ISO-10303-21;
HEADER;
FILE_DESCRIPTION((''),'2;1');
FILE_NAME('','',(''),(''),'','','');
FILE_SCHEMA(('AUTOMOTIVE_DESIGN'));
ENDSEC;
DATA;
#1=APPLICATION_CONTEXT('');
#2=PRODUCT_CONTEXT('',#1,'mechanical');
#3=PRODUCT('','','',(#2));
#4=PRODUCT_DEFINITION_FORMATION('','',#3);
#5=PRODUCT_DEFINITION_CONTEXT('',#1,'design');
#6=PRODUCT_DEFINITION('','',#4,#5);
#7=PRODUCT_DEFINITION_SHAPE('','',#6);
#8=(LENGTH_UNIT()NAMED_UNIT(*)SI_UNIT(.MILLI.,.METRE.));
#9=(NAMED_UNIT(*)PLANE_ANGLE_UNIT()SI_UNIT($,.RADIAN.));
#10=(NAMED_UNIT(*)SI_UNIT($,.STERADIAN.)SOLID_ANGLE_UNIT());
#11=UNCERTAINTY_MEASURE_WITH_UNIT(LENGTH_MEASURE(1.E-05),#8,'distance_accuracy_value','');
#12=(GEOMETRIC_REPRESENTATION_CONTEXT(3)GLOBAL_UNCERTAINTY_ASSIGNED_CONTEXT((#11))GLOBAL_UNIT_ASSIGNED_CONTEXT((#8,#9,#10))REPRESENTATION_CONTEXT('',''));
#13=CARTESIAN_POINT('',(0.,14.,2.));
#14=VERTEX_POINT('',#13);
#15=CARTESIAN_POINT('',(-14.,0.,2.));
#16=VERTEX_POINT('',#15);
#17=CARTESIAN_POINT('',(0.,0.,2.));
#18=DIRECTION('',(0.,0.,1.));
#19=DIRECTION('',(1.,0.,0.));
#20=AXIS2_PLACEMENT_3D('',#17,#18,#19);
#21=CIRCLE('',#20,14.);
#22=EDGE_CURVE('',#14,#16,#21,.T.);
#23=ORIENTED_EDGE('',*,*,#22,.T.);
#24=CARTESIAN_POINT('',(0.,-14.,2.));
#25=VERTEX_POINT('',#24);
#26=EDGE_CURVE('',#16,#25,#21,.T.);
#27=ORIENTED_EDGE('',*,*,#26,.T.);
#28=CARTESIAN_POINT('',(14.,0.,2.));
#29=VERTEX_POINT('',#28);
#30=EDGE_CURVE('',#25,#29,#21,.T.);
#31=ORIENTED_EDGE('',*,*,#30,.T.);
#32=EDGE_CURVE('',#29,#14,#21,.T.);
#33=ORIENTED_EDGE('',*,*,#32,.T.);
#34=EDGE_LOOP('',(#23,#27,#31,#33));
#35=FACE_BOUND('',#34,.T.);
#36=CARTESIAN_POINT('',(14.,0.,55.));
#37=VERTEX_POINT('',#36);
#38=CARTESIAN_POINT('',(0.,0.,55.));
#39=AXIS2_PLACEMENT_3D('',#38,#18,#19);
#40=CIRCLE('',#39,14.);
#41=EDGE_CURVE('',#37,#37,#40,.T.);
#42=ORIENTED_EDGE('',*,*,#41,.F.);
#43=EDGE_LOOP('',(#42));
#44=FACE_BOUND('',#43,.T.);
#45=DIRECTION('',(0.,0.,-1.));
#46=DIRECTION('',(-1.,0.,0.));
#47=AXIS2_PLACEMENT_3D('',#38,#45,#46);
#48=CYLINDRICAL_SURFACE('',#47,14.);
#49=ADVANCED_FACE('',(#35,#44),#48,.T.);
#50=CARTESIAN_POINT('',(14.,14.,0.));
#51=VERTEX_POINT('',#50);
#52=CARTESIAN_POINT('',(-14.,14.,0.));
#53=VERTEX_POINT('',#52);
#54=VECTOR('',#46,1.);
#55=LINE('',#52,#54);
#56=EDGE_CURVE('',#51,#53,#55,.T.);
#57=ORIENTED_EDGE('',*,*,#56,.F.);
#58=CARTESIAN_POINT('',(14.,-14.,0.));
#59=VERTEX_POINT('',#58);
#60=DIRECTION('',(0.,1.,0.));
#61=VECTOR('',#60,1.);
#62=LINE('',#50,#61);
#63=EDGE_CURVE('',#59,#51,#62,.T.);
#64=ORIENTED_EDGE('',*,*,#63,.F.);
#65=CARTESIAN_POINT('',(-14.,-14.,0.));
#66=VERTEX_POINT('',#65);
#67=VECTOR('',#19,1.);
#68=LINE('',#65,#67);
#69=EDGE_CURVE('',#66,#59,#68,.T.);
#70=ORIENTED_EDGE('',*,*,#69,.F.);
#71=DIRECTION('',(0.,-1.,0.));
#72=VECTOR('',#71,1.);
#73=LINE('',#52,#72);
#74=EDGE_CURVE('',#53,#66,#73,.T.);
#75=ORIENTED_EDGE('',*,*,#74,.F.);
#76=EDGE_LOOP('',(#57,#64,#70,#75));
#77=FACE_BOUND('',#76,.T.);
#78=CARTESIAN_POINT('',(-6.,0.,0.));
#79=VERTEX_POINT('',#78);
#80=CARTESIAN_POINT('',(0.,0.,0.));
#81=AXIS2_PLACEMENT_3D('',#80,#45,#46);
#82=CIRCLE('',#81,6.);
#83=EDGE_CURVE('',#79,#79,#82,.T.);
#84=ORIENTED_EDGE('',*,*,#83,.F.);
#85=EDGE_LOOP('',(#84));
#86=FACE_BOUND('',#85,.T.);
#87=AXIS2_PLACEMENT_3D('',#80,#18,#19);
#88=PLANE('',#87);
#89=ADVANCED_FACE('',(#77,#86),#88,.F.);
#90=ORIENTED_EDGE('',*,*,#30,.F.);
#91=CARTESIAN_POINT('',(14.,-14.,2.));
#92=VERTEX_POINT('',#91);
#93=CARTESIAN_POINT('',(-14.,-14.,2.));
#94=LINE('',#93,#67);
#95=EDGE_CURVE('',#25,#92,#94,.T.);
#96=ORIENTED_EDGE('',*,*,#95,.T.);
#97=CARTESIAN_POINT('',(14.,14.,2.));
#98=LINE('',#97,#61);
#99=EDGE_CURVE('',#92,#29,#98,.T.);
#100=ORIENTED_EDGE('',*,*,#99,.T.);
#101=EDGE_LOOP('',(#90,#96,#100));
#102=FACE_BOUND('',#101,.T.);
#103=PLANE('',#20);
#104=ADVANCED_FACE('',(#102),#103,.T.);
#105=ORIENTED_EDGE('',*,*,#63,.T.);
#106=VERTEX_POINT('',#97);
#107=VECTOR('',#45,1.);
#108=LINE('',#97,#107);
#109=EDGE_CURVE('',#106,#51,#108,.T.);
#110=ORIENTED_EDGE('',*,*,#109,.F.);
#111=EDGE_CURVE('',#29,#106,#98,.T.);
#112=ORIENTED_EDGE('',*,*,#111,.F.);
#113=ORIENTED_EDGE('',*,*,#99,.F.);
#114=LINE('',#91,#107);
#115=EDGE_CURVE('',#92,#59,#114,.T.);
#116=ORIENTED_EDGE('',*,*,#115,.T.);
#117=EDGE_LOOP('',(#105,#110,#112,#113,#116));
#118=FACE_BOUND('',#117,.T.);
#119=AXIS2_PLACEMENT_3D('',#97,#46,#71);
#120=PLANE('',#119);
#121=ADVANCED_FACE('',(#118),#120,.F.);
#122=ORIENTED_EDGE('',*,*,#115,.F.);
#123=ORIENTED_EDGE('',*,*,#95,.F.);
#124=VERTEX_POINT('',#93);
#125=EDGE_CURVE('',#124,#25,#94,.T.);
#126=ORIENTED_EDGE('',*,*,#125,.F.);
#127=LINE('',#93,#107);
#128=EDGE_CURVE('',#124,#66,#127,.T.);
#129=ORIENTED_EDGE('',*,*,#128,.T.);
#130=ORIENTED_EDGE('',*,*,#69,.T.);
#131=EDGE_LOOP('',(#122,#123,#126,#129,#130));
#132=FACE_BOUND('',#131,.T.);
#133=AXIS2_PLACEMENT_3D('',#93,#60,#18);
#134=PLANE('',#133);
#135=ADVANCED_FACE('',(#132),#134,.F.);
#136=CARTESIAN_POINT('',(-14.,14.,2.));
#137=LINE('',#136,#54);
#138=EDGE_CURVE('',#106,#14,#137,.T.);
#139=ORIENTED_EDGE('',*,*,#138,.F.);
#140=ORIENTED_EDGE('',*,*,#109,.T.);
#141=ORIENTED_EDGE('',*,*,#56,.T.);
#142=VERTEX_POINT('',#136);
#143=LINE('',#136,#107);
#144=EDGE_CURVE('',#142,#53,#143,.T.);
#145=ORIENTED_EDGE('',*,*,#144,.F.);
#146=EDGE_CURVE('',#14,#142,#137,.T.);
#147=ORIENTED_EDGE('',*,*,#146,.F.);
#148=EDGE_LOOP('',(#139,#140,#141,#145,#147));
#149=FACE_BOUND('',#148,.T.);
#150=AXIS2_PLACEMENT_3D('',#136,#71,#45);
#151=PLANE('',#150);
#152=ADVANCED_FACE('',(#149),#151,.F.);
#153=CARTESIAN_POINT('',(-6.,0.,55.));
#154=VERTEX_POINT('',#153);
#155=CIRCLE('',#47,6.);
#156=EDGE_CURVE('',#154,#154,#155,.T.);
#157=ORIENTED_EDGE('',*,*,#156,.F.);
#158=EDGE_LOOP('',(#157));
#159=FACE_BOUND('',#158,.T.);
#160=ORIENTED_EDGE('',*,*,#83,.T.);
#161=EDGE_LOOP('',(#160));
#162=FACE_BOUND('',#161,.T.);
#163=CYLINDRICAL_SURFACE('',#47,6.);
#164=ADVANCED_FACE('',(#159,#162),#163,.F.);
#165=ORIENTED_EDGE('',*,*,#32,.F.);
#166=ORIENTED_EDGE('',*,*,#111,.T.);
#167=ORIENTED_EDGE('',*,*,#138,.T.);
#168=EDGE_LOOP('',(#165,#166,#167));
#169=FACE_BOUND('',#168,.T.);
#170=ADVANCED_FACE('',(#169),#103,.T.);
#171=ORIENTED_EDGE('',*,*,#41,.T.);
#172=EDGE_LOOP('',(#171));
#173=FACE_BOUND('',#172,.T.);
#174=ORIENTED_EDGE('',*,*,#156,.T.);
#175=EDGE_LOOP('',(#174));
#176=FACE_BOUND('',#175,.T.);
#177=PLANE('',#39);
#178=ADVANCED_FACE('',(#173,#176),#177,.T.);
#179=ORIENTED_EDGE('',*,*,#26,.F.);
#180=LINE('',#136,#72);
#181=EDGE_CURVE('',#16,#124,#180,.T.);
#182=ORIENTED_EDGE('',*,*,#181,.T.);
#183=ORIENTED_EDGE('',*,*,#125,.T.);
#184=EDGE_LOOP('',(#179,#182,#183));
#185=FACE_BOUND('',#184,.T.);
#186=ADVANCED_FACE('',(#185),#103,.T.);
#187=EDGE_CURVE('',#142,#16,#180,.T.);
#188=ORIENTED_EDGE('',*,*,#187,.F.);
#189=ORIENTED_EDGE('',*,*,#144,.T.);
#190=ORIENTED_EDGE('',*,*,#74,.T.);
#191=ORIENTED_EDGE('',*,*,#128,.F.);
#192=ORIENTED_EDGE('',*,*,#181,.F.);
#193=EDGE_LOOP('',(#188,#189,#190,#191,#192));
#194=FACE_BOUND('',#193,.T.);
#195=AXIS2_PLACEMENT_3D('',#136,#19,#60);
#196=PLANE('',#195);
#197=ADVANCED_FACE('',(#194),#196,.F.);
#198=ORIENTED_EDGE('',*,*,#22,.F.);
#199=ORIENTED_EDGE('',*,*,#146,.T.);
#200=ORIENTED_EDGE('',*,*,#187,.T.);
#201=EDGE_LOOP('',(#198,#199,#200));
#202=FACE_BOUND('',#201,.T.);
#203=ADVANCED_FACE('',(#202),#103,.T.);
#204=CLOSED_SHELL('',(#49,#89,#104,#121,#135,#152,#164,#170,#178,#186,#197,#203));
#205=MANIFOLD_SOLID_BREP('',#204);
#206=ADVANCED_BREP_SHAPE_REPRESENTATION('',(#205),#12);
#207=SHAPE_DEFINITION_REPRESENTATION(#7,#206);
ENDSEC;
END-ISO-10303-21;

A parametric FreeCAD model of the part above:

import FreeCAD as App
import Part
import Sketcher
Q = App.Units.Quantity

doc = App.newDocument("Part")
body = doc.addObject("PartDesign::Body", "Body")

# Sketch on XY plane
sketch1 = doc.addObject("Sketcher::SketchObject", "Sketch")
body.addObject(sketch1)
sketch1.AttachmentSupport = (doc.XY_Plane, [""])
sketch1.MapMode = "FlatFace"
sketch1.addGeometry(Part.LineSegment(App.Vector(-14, 14, 0), App.Vector(-14, -14, 0)), False)
sketch1.addGeometry(Part.LineSegment(App.Vector(-14, -14, 0), App.Vector(14, -14, 0)), False)
sketch1.addGeometry(Part.LineSegment(App.Vector(14, -14, 0), App.Vector(14, 14, 0)), False)
sketch1.addGeometry(Part.LineSegment(App.Vector(14, 14, 0), App.Vector(-14, 14, 0)), False)
sketch1.addConstraint(Sketcher.Constraint("Coincident", 0, 2, 1, 1))
sketch1.addConstraint(Sketcher.Constraint("Coincident", 1, 2, 2, 1))
sketch1.addConstraint(Sketcher.Constraint("Coincident", 2, 2, 3, 1))
sketch1.addConstraint(Sketcher.Constraint("Coincident", 3, 2, 0, 1))
sketch1.addConstraint(Sketcher.Constraint("Vertical", 0))
sketch1.addConstraint(Sketcher.Constraint("Horizontal", 1))
sketch1.addConstraint(Sketcher.Constraint("Vertical", 2))
sketch1.addConstraint(Sketcher.Constraint("Horizontal", 3))
sketch1.addConstraint(Sketcher.Constraint("Symmetric", 0, 2, 2, 2, -1, 1))
sketch1.addConstraint(Sketcher.Constraint("Equal", 3, 0))
sketch1.addConstraint(Sketcher.Constraint("DistanceX", 1, 1, 1, 2, Q("28 mm")))
pad1 = doc.addObject("PartDesign::Pad", "Pad")
body.addObject(pad1)
pad1.Profile = sketch1
pad1.Length = 2

# Sketch on XY plane
sketch2 = doc.addObject("Sketcher::SketchObject", "Sketch001")
body.addObject(sketch2)
sketch2.AttachmentSupport = (doc.XY_Plane, [""])
sketch2.MapMode = "FlatFace"
sketch2.AttachmentOffset = App.Placement(App.Vector(0, 0, 2), App.Rotation())
sketch2.addGeometry(Part.Circle(App.Vector(0, 0, 0), App.Vector(0, 0, 1), 14), False)
sketch2.addConstraint(Sketcher.Constraint("Coincident", 0, 3, -1, 1))
sketch2.addConstraint(Sketcher.Constraint("Diameter", 0, Q("28 mm")))
pad2 = doc.addObject("PartDesign::Pad", "Pad001")
body.addObject(pad2)
pad2.Profile = sketch2
pad2.Length = 53

# Sketch on XY plane
sketch3 = doc.addObject("Sketcher::SketchObject", "Sketch002")
body.addObject(sketch3)
sketch3.AttachmentSupport = (doc.XY_Plane, [""])
sketch3.MapMode = "FlatFace"
sketch3.addGeometry(Part.Circle(App.Vector(0, 0, 0), App.Vector(0, 0, 1), 6), False)
sketch3.addConstraint(Sketcher.Constraint("Coincident", 0, 3, -1, 1))
sketch3.addConstraint(Sketcher.Constraint("Diameter", 0, Q("12 mm")))
pocket1 = doc.addObject("PartDesign::Pocket", "Pocket")
body.addObject(pocket1)
pocket1.Profile = sketch3
pocket1.Type = "ThroughAll"
pocket1.Reversed = True

doc.recompute()
